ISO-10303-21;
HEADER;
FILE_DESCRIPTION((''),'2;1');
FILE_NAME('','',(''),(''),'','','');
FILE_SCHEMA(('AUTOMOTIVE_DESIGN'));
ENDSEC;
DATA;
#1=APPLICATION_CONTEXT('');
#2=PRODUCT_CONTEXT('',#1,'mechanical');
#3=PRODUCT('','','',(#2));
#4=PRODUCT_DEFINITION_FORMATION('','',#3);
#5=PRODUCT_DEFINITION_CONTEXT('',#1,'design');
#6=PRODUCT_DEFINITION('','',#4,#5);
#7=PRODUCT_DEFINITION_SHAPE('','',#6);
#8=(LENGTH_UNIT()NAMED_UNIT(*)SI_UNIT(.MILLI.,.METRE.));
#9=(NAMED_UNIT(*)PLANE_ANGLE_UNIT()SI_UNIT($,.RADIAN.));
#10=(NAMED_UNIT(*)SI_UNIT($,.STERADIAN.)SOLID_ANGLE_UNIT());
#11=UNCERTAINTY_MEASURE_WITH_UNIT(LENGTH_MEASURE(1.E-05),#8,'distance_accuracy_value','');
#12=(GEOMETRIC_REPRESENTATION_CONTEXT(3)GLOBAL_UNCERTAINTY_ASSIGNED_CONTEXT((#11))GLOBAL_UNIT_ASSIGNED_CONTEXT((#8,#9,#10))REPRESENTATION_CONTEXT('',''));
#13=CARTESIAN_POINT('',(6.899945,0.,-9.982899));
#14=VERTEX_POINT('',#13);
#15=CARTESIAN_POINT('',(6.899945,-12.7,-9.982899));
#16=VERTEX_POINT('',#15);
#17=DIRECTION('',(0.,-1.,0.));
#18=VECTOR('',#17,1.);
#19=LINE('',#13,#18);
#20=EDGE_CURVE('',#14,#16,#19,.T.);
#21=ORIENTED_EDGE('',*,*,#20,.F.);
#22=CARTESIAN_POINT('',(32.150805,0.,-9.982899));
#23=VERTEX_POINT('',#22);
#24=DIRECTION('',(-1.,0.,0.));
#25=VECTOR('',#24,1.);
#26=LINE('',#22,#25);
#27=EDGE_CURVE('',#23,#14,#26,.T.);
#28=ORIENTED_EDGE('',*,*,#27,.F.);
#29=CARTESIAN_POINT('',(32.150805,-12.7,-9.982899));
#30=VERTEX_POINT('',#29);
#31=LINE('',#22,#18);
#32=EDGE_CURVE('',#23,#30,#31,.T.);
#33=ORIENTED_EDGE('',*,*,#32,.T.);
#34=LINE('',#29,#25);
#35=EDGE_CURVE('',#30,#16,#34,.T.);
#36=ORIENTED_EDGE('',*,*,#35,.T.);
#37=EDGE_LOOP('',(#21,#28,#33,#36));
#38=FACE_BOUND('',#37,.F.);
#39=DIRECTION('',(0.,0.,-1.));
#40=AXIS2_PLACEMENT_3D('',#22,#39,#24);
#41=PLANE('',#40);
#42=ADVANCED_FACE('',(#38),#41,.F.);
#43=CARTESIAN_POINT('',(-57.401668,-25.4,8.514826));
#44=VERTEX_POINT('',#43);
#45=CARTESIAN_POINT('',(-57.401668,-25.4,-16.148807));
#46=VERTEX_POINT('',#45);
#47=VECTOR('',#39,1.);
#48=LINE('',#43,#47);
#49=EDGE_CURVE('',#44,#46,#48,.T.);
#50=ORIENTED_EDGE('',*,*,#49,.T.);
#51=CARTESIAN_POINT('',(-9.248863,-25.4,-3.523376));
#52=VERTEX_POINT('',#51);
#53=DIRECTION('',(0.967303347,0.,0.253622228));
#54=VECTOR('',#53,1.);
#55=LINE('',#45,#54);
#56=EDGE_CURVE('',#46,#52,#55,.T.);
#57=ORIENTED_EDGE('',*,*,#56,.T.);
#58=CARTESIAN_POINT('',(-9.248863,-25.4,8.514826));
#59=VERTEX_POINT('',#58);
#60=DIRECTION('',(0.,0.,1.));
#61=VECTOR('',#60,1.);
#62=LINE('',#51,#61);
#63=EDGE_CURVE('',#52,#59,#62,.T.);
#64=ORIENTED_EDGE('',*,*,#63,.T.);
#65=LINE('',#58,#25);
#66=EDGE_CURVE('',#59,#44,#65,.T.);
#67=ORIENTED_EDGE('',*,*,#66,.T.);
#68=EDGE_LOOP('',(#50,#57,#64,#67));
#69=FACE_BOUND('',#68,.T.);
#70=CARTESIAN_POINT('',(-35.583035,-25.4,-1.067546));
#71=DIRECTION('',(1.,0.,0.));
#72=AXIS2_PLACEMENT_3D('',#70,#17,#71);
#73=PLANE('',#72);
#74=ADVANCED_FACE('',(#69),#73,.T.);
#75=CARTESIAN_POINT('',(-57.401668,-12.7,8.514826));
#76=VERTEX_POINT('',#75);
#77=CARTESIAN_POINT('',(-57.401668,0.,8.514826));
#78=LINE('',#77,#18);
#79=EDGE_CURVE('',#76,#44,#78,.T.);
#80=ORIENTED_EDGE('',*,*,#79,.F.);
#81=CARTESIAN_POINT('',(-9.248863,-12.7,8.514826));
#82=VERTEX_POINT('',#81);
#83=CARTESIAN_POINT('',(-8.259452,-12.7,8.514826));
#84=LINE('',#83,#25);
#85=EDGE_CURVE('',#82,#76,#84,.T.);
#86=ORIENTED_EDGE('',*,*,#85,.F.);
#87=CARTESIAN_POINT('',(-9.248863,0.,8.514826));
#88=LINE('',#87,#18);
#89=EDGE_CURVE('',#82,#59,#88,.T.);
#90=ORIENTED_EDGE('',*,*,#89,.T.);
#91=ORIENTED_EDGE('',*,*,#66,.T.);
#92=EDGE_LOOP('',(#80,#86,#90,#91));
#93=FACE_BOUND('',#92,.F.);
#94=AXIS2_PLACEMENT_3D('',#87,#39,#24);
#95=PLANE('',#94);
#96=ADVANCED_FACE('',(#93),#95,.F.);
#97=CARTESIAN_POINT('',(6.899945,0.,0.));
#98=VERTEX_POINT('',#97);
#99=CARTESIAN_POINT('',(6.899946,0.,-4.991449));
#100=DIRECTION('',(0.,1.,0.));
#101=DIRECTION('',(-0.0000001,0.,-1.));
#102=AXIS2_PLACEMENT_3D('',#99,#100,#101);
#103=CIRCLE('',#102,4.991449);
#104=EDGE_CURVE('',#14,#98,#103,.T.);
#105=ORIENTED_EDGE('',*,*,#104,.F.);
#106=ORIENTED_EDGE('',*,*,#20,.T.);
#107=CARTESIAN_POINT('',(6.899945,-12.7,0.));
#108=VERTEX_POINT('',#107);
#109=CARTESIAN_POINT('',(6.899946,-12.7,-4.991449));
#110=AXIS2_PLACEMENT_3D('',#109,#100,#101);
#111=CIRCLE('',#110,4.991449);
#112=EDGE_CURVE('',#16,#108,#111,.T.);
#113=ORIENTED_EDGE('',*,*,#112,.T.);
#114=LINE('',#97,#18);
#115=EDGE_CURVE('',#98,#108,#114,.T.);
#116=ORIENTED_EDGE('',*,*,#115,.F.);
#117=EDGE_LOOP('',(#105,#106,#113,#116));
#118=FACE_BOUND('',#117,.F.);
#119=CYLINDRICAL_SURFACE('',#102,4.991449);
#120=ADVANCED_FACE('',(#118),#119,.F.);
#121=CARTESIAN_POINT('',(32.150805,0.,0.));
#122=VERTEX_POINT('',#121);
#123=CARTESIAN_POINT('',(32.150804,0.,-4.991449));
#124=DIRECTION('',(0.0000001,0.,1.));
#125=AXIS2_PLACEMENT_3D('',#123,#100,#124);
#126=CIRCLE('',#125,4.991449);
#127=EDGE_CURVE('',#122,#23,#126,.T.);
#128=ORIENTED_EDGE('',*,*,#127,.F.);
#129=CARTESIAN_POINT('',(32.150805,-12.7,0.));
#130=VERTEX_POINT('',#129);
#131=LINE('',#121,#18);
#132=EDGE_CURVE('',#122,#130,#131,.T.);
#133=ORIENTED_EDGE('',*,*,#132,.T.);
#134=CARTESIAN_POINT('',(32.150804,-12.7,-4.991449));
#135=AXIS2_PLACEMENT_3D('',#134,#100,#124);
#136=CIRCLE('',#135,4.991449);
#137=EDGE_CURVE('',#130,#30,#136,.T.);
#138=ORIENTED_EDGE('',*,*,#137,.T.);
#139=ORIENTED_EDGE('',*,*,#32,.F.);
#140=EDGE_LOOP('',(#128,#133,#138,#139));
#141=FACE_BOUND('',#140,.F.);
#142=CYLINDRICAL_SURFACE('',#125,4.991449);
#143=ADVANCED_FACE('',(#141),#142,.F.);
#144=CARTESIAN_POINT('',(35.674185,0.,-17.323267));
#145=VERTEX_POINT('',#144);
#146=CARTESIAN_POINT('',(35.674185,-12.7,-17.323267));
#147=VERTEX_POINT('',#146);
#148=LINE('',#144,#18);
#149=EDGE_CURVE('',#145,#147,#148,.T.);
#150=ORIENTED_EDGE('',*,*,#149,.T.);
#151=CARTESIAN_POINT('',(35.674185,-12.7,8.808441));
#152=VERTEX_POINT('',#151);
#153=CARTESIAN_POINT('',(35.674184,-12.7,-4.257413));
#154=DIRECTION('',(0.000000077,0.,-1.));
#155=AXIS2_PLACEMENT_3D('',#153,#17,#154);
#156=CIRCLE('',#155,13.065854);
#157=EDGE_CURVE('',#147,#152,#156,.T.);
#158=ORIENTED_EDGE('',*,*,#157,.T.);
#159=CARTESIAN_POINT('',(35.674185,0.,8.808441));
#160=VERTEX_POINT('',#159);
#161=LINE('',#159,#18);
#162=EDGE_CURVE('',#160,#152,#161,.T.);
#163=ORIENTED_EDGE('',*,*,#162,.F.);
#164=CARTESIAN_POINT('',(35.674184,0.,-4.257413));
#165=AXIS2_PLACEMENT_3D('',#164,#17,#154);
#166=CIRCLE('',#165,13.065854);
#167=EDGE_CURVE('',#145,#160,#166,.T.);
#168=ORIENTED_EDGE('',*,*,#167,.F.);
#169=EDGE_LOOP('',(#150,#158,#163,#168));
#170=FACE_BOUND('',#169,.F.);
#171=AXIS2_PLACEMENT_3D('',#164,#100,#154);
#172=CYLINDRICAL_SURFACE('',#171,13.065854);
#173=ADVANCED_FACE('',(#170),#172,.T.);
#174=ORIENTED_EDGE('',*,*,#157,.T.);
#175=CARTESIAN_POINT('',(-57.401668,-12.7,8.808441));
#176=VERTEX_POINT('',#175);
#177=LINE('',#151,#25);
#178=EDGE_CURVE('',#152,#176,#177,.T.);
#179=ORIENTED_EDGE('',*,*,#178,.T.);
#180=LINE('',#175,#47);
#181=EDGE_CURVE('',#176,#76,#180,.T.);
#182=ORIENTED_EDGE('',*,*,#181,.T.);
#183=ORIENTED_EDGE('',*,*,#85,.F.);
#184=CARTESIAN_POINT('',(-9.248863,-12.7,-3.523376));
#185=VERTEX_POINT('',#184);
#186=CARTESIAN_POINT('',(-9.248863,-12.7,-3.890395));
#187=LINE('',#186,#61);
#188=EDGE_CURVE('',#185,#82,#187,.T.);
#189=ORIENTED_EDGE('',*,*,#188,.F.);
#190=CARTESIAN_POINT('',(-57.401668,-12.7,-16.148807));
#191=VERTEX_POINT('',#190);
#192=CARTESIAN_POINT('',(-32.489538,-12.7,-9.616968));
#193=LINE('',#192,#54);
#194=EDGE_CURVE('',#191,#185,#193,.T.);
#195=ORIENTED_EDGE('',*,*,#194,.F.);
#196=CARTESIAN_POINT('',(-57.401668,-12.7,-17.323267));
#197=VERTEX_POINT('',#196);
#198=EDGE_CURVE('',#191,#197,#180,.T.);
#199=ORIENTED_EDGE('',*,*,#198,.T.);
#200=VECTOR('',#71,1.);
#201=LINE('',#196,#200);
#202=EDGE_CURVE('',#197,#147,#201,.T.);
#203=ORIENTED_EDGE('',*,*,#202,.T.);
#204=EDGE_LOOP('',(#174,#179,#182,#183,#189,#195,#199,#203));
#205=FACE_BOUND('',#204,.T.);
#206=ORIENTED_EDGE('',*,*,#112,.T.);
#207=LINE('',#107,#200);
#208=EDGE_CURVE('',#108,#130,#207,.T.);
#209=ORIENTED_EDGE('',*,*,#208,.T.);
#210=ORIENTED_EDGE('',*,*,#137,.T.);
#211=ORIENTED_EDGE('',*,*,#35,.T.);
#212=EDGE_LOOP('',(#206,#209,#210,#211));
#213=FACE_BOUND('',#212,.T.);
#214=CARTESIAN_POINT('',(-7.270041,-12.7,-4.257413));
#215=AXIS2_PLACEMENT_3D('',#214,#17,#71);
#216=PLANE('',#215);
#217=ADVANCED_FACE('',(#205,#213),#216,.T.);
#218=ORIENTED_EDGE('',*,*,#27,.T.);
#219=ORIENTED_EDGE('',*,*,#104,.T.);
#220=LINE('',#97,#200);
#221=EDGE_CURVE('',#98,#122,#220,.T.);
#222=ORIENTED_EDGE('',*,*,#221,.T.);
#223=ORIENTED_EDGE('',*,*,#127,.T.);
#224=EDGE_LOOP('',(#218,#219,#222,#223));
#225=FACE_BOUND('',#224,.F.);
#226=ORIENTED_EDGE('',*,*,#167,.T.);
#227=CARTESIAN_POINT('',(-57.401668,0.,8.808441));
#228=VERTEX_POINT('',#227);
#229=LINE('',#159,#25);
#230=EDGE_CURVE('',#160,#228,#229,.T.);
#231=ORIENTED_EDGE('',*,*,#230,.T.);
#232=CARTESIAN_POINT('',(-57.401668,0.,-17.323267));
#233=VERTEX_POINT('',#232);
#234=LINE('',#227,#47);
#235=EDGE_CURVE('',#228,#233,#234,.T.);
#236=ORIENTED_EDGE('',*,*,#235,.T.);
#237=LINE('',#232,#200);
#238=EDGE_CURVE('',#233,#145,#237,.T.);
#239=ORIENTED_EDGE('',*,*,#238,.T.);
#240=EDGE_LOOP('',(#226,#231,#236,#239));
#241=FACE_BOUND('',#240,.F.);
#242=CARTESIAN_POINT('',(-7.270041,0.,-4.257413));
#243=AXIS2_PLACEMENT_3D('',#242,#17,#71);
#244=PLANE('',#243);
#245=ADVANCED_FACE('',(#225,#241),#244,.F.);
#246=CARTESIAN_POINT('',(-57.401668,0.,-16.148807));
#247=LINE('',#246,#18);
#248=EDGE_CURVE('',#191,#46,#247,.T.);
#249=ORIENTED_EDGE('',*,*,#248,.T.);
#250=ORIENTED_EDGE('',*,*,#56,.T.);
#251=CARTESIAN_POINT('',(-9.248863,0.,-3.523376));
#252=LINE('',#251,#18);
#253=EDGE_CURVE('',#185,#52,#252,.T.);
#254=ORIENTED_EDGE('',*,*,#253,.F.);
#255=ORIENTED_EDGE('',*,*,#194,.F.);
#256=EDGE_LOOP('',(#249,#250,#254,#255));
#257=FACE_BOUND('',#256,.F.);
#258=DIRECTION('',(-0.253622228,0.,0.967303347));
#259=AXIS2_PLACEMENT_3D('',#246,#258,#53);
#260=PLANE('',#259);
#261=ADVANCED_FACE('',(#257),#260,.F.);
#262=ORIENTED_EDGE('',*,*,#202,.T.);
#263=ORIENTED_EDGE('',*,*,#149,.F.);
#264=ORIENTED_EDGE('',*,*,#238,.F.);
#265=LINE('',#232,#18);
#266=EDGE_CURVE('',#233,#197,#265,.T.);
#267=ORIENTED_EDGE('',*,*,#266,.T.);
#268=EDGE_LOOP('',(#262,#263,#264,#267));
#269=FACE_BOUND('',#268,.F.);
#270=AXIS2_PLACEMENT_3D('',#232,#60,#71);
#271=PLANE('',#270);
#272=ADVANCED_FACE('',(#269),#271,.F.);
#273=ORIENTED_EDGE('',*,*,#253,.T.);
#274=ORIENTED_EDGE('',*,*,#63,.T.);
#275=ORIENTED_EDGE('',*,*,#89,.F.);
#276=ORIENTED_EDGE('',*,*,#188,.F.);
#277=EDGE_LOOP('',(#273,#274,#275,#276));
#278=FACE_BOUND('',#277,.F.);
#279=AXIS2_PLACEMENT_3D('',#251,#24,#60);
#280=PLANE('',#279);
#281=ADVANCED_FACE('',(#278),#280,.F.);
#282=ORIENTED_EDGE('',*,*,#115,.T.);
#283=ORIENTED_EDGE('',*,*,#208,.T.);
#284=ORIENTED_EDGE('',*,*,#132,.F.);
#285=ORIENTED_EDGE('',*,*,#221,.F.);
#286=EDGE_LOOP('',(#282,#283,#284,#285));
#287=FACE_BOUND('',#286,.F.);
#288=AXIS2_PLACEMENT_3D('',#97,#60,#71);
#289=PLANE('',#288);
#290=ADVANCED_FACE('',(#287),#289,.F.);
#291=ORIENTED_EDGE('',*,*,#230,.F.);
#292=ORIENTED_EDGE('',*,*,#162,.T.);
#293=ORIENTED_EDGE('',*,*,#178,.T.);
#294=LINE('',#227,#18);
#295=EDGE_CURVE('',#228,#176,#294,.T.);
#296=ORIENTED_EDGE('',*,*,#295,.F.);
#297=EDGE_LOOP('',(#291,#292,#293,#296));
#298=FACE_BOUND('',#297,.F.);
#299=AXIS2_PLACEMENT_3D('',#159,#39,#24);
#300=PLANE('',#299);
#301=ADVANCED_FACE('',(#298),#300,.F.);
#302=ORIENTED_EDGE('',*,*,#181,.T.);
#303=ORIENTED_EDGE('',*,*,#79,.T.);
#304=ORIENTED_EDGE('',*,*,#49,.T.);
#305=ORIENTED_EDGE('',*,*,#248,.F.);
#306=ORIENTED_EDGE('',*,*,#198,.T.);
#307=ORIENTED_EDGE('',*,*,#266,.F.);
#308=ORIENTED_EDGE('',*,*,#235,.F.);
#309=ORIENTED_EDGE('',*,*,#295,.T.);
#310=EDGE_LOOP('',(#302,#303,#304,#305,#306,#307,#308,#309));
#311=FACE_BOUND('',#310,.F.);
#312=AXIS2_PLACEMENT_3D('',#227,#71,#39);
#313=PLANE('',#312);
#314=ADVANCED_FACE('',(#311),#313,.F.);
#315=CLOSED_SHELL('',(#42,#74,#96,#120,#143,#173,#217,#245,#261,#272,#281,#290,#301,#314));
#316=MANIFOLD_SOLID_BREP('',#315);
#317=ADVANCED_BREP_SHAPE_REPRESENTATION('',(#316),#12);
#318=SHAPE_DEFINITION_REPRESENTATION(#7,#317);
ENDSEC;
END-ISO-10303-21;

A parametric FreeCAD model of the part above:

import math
import FreeCAD as App
import Part
import Sketcher
Q = App.Units.Quantity


def add_polygon(sketch, points):
    """Adds a closed chain of lines whose ends are joined by coincident constraints."""
    first, n = sketch.GeometryCount, len(points)
    for a, b in zip(points, points[1:] + points[:1]):
        sketch.addGeometry(Part.LineSegment(App.Vector(*a, 0), App.Vector(*b, 0)), False)
    for i in range(n):
        sketch.addConstraint(Sketcher.Constraint("Coincident", first + i, 2, first + (i + 1) % n, 1))

doc = App.newDocument("Part")
body = doc.addObject("PartDesign::Body", "Body")

sketch1 = doc.addObject("Sketcher::SketchObject", "Sketch")
body.addObject(sketch1)
sketch1.AttachmentSupport = (doc.XZ_Plane, [""])
sketch1.MapMode = "FlatFace"
add_polygon(sketch1, [(-9.248863, 8.514826), (-57.401668, 8.514826), (-57.401668, -16.148807), (-9.248863, -3.523376)])
sketch1.addConstraint(Sketcher.Constraint("Horizontal", 0))
sketch1.addConstraint(Sketcher.Constraint("Vertical", 1))
sketch1.addConstraint(Sketcher.Constraint("Vertical", 3))
sketch1.addConstraint(Sketcher.Constraint("DistanceY", 3, 1, 3, 2, Q("12.038202 mm")))
sketch1.addConstraint(Sketcher.Constraint("Distance", 2, Q("49.780459 mm")))
sketch1.addConstraint(Sketcher.Constraint("DistanceX", 0, 2, 0, 1, Q("48.152805 mm")))
sketch1.addConstraint(Sketcher.Constraint("DistanceX", 0, 2, -1, 1, Q("57.401668 mm")))
sketch1.addConstraint(Sketcher.Constraint("DistanceY", -1, 1, 0, 2, Q("8.514826 mm")))
pad1 = doc.addObject("PartDesign::Pad", "Pad")
body.addObject(pad1)
pad1.Profile = sketch1
pad1.Length = Q("1 in")

sketch2 = doc.addObject("Sketcher::SketchObject", "Sketch001")
body.addObject(sketch2)
sketch2.AttachmentSupport = (doc.XZ_Plane, [""])
sketch2.MapMode = "FlatFace"
sketch2.addGeometry(Part.LineSegment(App.Vector(35.674185, 8.808441, 0), App.Vector(-57.401668, 8.808441, 0)), False)
sketch2.addGeometry(Part.LineSegment(App.Vector(-57.401668, 8.808441, 0), App.Vector(-57.401668, -17.323267, 0)), False)
sketch2.addGeometry(Part.LineSegment(App.Vector(-57.401668, -17.323267, 0), App.Vector(35.674185, -17.323267, 0)), False)
sketch2.addGeometry(Part.ArcOfCircle(Part.Circle(App.Vector(35.674184, -4.257413, 0), App.Vector(0, 0, 1), 13.065854), math.radians(-89.999996), math.radians(89.999996)), False)
sketch2.addGeometry(Part.LineSegment(App.Vector(32.150805, -9.982899, 0), App.Vector(6.899945, -9.982899, 0)), False)
sketch2.addGeometry(Part.ArcOfCircle(Part.Circle(App.Vector(6.899946, -4.991449, 0), App.Vector(0, 0, 1), 4.991449), math.radians(90.000006), math.radians(269.999994)), False)
sketch2.addGeometry(Part.LineSegment(App.Vector(6.899945, 0, 0), App.Vector(32.150805, 0, 0)), False)
sketch2.addGeometry(Part.ArcOfCircle(Part.Circle(App.Vector(32.150804, -4.991449, 0), App.Vector(0, 0, 1), 4.991449), math.radians(-89.999994), math.radians(89.999994)), False)
sketch2.addConstraint(Sketcher.Constraint("Coincident", 0, 2, 1, 1))
sketch2.addConstraint(Sketcher.Constraint("Coincident", 1, 2, 2, 1))
sketch2.addConstraint(Sketcher.Constraint("Tangent", 2, 2, 3, 1))
sketch2.addConstraint(Sketcher.Constraint("Tangent", 3, 2, 0, 1))
sketch2.addConstraint(Sketcher.Constraint("Tangent", 4, 2, 5, 2))
sketch2.addConstraint(Sketcher.Constraint("Tangent", 5, 1, 6, 1))
sketch2.addConstraint(Sketcher.Constraint("Tangent", 6, 2, 7, 2))
sketch2.addConstraint(Sketcher.Constraint("Tangent", 7, 1, 4, 1))
sketch2.addConstraint(Sketcher.Constraint("Horizontal", 0))
sketch2.addConstraint(Sketcher.Constraint("Vertical", 1))
sketch2.addConstraint(Sketcher.Constraint("Horizontal", 2))
sketch2.addConstraint(Sketcher.Constraint("Horizontal", 4))
sketch2.addConstraint(Sketcher.Constraint("Horizontal", 6))
sketch2.addConstraint(Sketcher.Constraint("PointOnObject", 5, 1, -1))
sketch2.addConstraint(Sketcher.Constraint("Radius", 5, Q("4.991449 mm")))
sketch2.addConstraint(Sketcher.Constraint("Radius", 3, Q("13.065854 mm")))
sketch2.addConstraint(Sketcher.Constraint("DistanceX", 4, 2, 4, 1, Q("25.25086 mm")))
sketch2.addConstraint(Sketcher.Constraint("DistanceX", 0, 2, 0, 1, Q("93.075853 mm")))
sketch2.addConstraint(Sketcher.Constraint("DistanceY", -1, 1, 0, 2, Q("8.808441 mm")))
sketch2.addConstraint(Sketcher.Constraint("DistanceX", 5, 3, 3, 3, Q("28.774238 mm")))
sketch2.addConstraint(Sketcher.Constraint("DistanceX", -1, 1, 3, 3, Q("35.674184 mm")))
pad2 = doc.addObject("PartDesign::Pad", "Pad001")
body.addObject(pad2)
pad2.Profile = sketch2
pad2.Length = Q("0.5 in")

doc.recompute()
